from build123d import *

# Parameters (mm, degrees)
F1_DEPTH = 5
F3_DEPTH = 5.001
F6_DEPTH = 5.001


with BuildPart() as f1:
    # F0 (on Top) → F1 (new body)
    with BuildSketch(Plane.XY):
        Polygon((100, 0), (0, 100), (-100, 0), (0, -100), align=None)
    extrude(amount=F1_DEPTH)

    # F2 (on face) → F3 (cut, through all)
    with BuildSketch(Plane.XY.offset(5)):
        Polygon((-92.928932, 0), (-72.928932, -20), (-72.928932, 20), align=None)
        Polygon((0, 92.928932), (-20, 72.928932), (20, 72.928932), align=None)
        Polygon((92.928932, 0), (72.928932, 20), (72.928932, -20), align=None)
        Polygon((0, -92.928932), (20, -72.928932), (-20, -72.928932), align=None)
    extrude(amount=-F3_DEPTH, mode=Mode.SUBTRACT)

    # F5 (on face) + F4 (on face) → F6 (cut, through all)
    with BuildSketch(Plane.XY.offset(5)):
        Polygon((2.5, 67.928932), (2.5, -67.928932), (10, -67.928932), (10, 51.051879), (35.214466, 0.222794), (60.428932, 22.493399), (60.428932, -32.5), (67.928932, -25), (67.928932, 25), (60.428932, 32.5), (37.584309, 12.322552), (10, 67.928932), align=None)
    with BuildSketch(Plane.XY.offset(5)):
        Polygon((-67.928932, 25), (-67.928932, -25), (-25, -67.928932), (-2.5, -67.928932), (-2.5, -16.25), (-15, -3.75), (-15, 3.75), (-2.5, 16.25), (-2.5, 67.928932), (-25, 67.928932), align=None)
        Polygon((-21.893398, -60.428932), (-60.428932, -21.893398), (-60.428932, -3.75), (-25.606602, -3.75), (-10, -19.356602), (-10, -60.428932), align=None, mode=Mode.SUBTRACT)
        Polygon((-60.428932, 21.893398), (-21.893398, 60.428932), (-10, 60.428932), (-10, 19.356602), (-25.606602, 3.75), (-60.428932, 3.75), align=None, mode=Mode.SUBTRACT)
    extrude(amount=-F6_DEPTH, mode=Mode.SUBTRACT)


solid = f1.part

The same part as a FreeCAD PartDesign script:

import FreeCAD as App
import Part
import Sketcher

V = App.Vector
Q = App.Units.Quantity

doc = App.newDocument("Part")
body = doc.addObject("PartDesign::Body", "Body")
body.AllowCompound = True

# Sketch on XY plane
sketch1 = body.newObject("Sketcher::SketchObject", "Sketch")
sketch1.AttachmentSupport = (doc.getObject("XY_Plane"), [""])
sketch1.MapMode = "FlatFace"
sketch1.addGeometry([
    Part.LineSegment(V(100, 0, 0), V(0, 100, 0)),
    Part.LineSegment(V(0, 100, 0), V(-100, 0, 0)),
    Part.LineSegment(V(-100, 0, 0), V(0, -100, 0)),
    Part.LineSegment(V(0, -100, 0), V(100, 0, 0)),
], False)
sketch1.addConstraint([
    Sketcher.Constraint("Coincident", 0, 2, 1, 1),
    Sketcher.Constraint("Coincident", 1, 2, 2, 1),
    Sketcher.Constraint("Coincident", 2, 2, 3, 1),
    Sketcher.Constraint("Coincident", 3, 2, 0, 1),
    Sketcher.Constraint("Symmetric", 0, 2, 2, 2, -1, 1),
    Sketcher.Constraint("Symmetric", 1, 2, 3, 2, -1, 1),
    Sketcher.Constraint("PointOnObject", 0, 2, -2),
    Sketcher.Constraint("PointOnObject", 1, 2, -1),
    Sketcher.Constraint("Perpendicular", 0, 1),
    Sketcher.Constraint("DistanceY", -1, 1, 0, 2, Q("100 mm")),
])
pad1 = body.newObject("PartDesign::Pad", "Pad")
pad1.Profile = sketch1
pad1.Length = 5

# Sketch on XY plane
sketch2 = body.newObject("Sketcher::SketchObject", "Sketch001")
sketch2.AttachmentSupport = (doc.getObject("XY_Plane"), [""])
sketch2.MapMode = "FlatFace"
sketch2.AttachmentOffset = App.Placement(V(0, 0, 5), App.Rotation())
sketch2.addGeometry([
    Part.LineSegment(V(-93, 0, 0), V(-73, -20, 0)),  # 0
    Part.LineSegment(V(-73, -20, 0), V(-73, 20, 0)),  # 1
    Part.LineSegment(V(-73, 20, 0), V(-93, 0, 0)),  # 2
    Part.LineSegment(V(0, 93, 0), V(-20, 73, 0)),  # 3
    Part.LineSegment(V(-20, 73, 0), V(20, 73, 0)),  # 4
    Part.LineSegment(V(20, 73, 0), V(0, 93, 0)),  # 5
    Part.LineSegment(V(93, 0, 0), V(73, 20, 0)),  # 6
    Part.LineSegment(V(73, 20, 0), V(73, -20, 0)),  # 7
    Part.LineSegment(V(73, -20, 0), V(93, 0, 0)),  # 8
    Part.LineSegment(V(0, -93, 0), V(20, -73, 0)),  # 9
    Part.LineSegment(V(20, -73, 0), V(-20, -73, 0)),  # 10
    Part.LineSegment(V(-20, -73, 0), V(0, -93, 0)),  # 11
], False)
sketch2.addConstraint([
    Sketcher.Constraint("Coincident", 0, 2, 1, 1),
    Sketcher.Constraint("Coincident", 1, 2, 2, 1),
    Sketcher.Constraint("Coincident", 2, 2, 0, 1),
    Sketcher.Constraint("Coincident", 3, 2, 4, 1),
    Sketcher.Constraint("Coincident", 4, 2, 5, 1),
    Sketcher.Constraint("Coincident", 5, 2, 3, 1),
    Sketcher.Constraint("Coincident", 6, 2, 7, 1),
    Sketcher.Constraint("Coincident", 7, 2, 8, 1),
    Sketcher.Constraint("Coincident", 8, 2, 6, 1),
    Sketcher.Constraint("Coincident", 9, 2, 10, 1),
    Sketcher.Constraint("Coincident", 10, 2, 11, 1),
    Sketcher.Constraint("Coincident", 11, 2, 9, 1),
    Sketcher.Constraint("Vertical", 1),
    Sketcher.Constraint("Horizontal", 4),
    Sketcher.Constraint("Vertical", 7),
    Sketcher.Constraint("Horizontal", 10),
    Sketcher.Constraint("Symmetric", 0, 2, 6, 2, -1, 1),
    Sketcher.Constraint("Symmetric", 2, 2, 8, 2, -1, 1),
    Sketcher.Constraint("Symmetric", 3, 2, 9, 2, -1, 1),
    Sketcher.Constraint("Symmetric", 5, 2, 11, 2, -1, 1),
    Sketcher.Constraint("PointOnObject", 2, 2, -1),
    Sketcher.Constraint("PointOnObject", 5, 2, -2),
    Sketcher.Constraint("Perpendicular", 0, 2),
    Sketcher.Constraint("Parallel", 2, 3),
    Sketcher.Constraint("Perpendicular", 3, 5),
    Sketcher.Constraint("Perpendicular", 6, 8),
    Sketcher.Constraint("Perpendicular", 9, 11),
    Sketcher.Constraint("Horizontal", 1, 2, 6, 2),
    Sketcher.Constraint("Equal", 10, 1),
    Sketcher.Constraint("DistanceX", 4, 1, 4, 2, Q("40 mm")),
    Sketcher.Constraint("DistanceX", 0, 2, -1, 1, Q("72.928932 mm")),
    Sketcher.Constraint("DistanceY", -1, 1, 3, 2, Q("72.928932 mm")),
])
pocket1 = body.newObject("PartDesign::Pocket", "Pocket")
pocket1.Profile = sketch2
pocket1.Type = "ThroughAll"

# Sketch on XY plane
sketch3 = body.newObject("Sketcher::SketchObject", "Sketch002")
sketch3.AttachmentSupport = (doc.getObject("XY_Plane"), [""])
sketch3.MapMode = "FlatFace"
sketch3.AttachmentOffset = App.Placement(V(0, 0, 5), App.Rotation())
sketch3.addGeometry([
    Part.LineSegment(V(2, 68, 0), V(2, -68, 0)),  # 0
    Part.LineSegment(V(2, -68, 0), V(10, -68, 0)),  # 1
    Part.LineSegment(V(10, -68, 0), V(10, 51, 0)),  # 2
    Part.LineSegment(V(10, 51, 0), V(35, 0, 0)),  # 3
    Part.LineSegment(V(35, 0, 0), V(60, 22, 0)),  # 4
    Part.LineSegment(V(60, 22, 0), V(60, -32, 0)),  # 5
    Part.LineSegment(V(60, -32, 0), V(68, -25, 0)),  # 6
    Part.LineSegment(V(68, -25, 0), V(68, 25, 0)),  # 7
    Part.LineSegment(V(68, 25, 0), V(60, 32, 0)),  # 8
    Part.LineSegment(V(60, 32, 0), V(38, 12, 0)),  # 9
    Part.LineSegment(V(38, 12, 0), V(10, 68, 0)),  # 10
    Part.LineSegment(V(10, 68, 0), V(2, 68, 0)),  # 11
    Part.LineSegment(V(-68, 25, 0), V(-68, -25, 0)),  # 12
    Part.LineSegment(V(-68, -25, 0), V(-25, -68, 0)),  # 13
    Part.LineSegment(V(-25, -68, 0), V(-2, -68, 0)),  # 14
    Part.LineSegment(V(-2, -68, 0), V(-2, -16, 0)),  # 15
    Part.LineSegment(V(-2, -16, 0), V(-15, -4, 0)),  # 16
    Part.LineSegment(V(-15, -4, 0), V(-15, 4, 0)),  # 17
    Part.LineSegment(V(-15, 4, 0), V(-2, 16, 0)),  # 18
    Part.LineSegment(V(-2, 16, 0), V(-2, 68, 0)),  # 19
    Part.LineSegment(V(-2, 68, 0), V(-25, 68, 0)),  # 20
    Part.LineSegment(V(-25, 68, 0), V(-68, 25, 0)),  # 21
    Part.LineSegment(V(-10, -60, 0), V(-22, -60, 0)),  # 22
    Part.LineSegment(V(-22, -60, 0), V(-60, -22, 0)),  # 23
    Part.LineSegment(V(-60, -22, 0), V(-60, -4, 0)),  # 24
    Part.LineSegment(V(-60, -4, 0), V(-26, -4, 0)),  # 25
    Part.LineSegment(V(-26, -4, 0), V(-10, -19, 0)),  # 26
    Part.LineSegment(V(-10, -19, 0), V(-10, -60, 0)),  # 27
    Part.LineSegment(V(-60, 4, 0), V(-60, 22, 0)),  # 28
    Part.LineSegment(V(-60, 22, 0), V(-22, 60, 0)),  # 29
    Part.LineSegment(V(-22, 60, 0), V(-10, 60, 0)),  # 30
    Part.LineSegment(V(-10, 60, 0), V(-10, 19, 0)),  # 31
    Part.LineSegment(V(-10, 19, 0), V(-26, 4, 0)),  # 32
    Part.LineSegment(V(-26, 4, 0), V(-60, 4, 0)),  # 33
], False)
sketch3.addConstraint([
    Sketcher.Constraint("Coincident", 0, 2, 1, 1),
    Sketcher.Constraint("Coincident", 1, 2, 2, 1),
    Sketcher.Constraint("Coincident", 2, 2, 3, 1),
    Sketcher.Constraint("Coincident", 3, 2, 4, 1),
    Sketcher.Constraint("Coincident", 4, 2, 5, 1),
    Sketcher.Constraint("Coincident", 5, 2, 6, 1),
    Sketcher.Constraint("Coincident", 6, 2, 7, 1),
    Sketcher.Constraint("Coincident", 7, 2, 8, 1),
    Sketcher.Constraint("Coincident", 8, 2, 9, 1),
    Sketcher.Constraint("Coincident", 9, 2, 10, 1),
    Sketcher.Constraint("Coincident", 10, 2, 11, 1),
    Sketcher.Constraint("Coincident", 11, 2, 0, 1),
    Sketcher.Constraint("Coincident", 12, 2, 13, 1),
    Sketcher.Constraint("Coincident", 13, 2, 14, 1),
    Sketcher.Constraint("Coincident", 14, 2, 15, 1),
    Sketcher.Constraint("Coincident", 15, 2, 16, 1),
    Sketcher.Constraint("Coincident", 16, 2, 17, 1),
    Sketcher.Constraint("Coincident", 17, 2, 18, 1),
    Sketcher.Constraint("Coincident", 18, 2, 19, 1),
    Sketcher.Constraint("Coincident", 19, 2, 20, 1),
    Sketcher.Constraint("Coincident", 20, 2, 21, 1),
    Sketcher.Constraint("Coincident", 21, 2, 12, 1),
    Sketcher.Constraint("Coincident", 22, 2, 23, 1),
    Sketcher.Constraint("Coincident", 23, 2, 24, 1),
    Sketcher.Constraint("Coincident", 24, 2, 25, 1),
    Sketcher.Constraint("Coincident", 25, 2, 26, 1),
    Sketcher.Constraint("Coincident", 26, 2, 27, 1),
    Sketcher.Constraint("Coincident", 27, 2, 22, 1),
    Sketcher.Constraint("Coincident", 28, 2, 29, 1),
    Sketcher.Constraint("Coincident", 29, 2, 30, 1),
    Sketcher.Constraint("Coincident", 30, 2, 31, 1),
    Sketcher.Constraint("Coincident", 31, 2, 32, 1),
    Sketcher.Constraint("Coincident", 32, 2, 33, 1),
    Sketcher.Constraint("Coincident", 33, 2, 28, 1),
    Sketcher.Constraint("Vertical", 0),
    Sketcher.Constraint("Horizontal", 1),
    Sketcher.Constraint("Vertical", 2),
    Sketcher.Constraint("Vertical", 5),
    Sketcher.Constraint("Vertical", 7),
    Sketcher.Constraint("Horizontal", 11),
    Sketcher.Constraint("Vertical", 12),
    Sketcher.Constraint("Horizontal", 14),
    Sketcher.Constraint("Vertical", 15),
    Sketcher.Constraint("Vertical", 17),
    Sketcher.Constraint("Vertical", 19),
    Sketcher.Constraint("Horizontal", 20),
    Sketcher.Constraint("Horizontal", 22),
    Sketcher.Constraint("Vertical", 24),
    Sketcher.Constraint("Horizontal", 25),
    Sketcher.Constraint("Vertical", 27),
    Sketcher.Constraint("Vertical", 28),
    Sketcher.Constraint("Horizontal", 30),
    Sketcher.Constraint("Vertical", 31),
    Sketcher.Constraint("Horizontal", 33),
    Sketcher.Constraint("Symmetric", 7, 2, 12, 2, -1, 1),
    Sketcher.Constraint("Symmetric", 11, 2, 14, 2, -1, 1),
    Sketcher.Constraint("Symmetric", 0, 2, 19, 2, -1, 1),
    Sketcher.Constraint("Symmetric", 5, 2, 8, 2, -1),
    Sketcher.Constraint("Symmetric", 1, 2, 10, 2, -1),
    Sketcher.Constraint("Symmetric", 23, 2, 28, 2, -1),
    Sketcher.Constraint("Symmetric", 22, 2, 29, 2, -1),
    Sketcher.Constraint("Symmetric", 26, 2, 31, 2, -1),
    Sketcher.Constraint("Symmetric", 25, 2, 32, 2, -1),
    Sketcher.Constraint("Perpendicular", 6, 8),
    Sketcher.Constraint("Parallel", 4, 9),
    Sketcher.Constraint("Parallel", 3, 10),
    Sketcher.Constraint("Parallel", 8, 13),
    Sketcher.Constraint("Parallel", 13, 16),
    Sketcher.Constraint("Perpendicular", 16, 18),
    Sketcher.Constraint("Parallel", 18, 21),
    Sketcher.Constraint("Perpendicular", 21, 23),
    Sketcher.Constraint("Parallel", 23, 26),
    Sketcher.Constraint("Perpendicular", 26, 29),
    Sketcher.Constraint("Horizontal", 7, 2, 21, 2),
    Sketcher.Constraint("Horizontal", 16, 2, 24, 2),
    Sketcher.Constraint("Horizontal", 17, 2, 32, 2),
    Sketcher.Constraint("Equal", 11, 17),
    Sketcher.Constraint("DistanceY", 7, 1, 7, 2, Q("50 mm")),
    Sketcher.Constraint("DistanceX", 1, 1, 1, 2, Q("7.5 mm")),
    Sketcher.Constraint("DistanceX", 14, 1, 14, 2, Q("22.5 mm")),
    Sketcher.Constraint("DistanceX", -1, 1, 1, 2, Q("10 mm")),
    Sketcher.Constraint("DistanceX", 16, 2, -1, 1, Q("15 mm")),
    Sketcher.Constraint("DistanceX", 26, 2, -1, 1, Q("10 mm")),
    Sketcher.Constraint("DistanceY", 5, 2, -1, 1, Q("32.5 mm")),
    Sketcher.Constraint("DistanceY", 13, 2, 22, 2, Q("7.5 mm")),
    Sketcher.Constraint("DistanceX", 12, 2, 23, 2, Q("7.5 mm")),
    Sketcher.Constraint("DistanceX", 22, 2, 22, 1, Q("11.893398 mm")),
    Sketcher.Constraint("DistanceY", 5, 2, 5, 1, Q("54.993399 mm")),
    Sketcher.Constraint("DistanceX", 25, 1, 25, 2, Q("34.82233 mm")),
    Sketcher.Constraint("DistanceY", 2, 1, 2, 2, Q("118.980811 mm")),
    Sketcher.Constraint("DistanceX", 25, 2, -1, 1, Q("25.606602 mm")),
    Sketcher.Constraint("DistanceX", 12, 2, 3, 2, Q("103.143398 mm")),
    Sketcher.Constraint("Distance", 3, Q("56.73945 mm")),
])
pocket2 = body.newObject("PartDesign::Pocket", "Pocket001")
pocket2.Profile = sketch3
pocket2.Type = "ThroughAll"

doc.recompute()
